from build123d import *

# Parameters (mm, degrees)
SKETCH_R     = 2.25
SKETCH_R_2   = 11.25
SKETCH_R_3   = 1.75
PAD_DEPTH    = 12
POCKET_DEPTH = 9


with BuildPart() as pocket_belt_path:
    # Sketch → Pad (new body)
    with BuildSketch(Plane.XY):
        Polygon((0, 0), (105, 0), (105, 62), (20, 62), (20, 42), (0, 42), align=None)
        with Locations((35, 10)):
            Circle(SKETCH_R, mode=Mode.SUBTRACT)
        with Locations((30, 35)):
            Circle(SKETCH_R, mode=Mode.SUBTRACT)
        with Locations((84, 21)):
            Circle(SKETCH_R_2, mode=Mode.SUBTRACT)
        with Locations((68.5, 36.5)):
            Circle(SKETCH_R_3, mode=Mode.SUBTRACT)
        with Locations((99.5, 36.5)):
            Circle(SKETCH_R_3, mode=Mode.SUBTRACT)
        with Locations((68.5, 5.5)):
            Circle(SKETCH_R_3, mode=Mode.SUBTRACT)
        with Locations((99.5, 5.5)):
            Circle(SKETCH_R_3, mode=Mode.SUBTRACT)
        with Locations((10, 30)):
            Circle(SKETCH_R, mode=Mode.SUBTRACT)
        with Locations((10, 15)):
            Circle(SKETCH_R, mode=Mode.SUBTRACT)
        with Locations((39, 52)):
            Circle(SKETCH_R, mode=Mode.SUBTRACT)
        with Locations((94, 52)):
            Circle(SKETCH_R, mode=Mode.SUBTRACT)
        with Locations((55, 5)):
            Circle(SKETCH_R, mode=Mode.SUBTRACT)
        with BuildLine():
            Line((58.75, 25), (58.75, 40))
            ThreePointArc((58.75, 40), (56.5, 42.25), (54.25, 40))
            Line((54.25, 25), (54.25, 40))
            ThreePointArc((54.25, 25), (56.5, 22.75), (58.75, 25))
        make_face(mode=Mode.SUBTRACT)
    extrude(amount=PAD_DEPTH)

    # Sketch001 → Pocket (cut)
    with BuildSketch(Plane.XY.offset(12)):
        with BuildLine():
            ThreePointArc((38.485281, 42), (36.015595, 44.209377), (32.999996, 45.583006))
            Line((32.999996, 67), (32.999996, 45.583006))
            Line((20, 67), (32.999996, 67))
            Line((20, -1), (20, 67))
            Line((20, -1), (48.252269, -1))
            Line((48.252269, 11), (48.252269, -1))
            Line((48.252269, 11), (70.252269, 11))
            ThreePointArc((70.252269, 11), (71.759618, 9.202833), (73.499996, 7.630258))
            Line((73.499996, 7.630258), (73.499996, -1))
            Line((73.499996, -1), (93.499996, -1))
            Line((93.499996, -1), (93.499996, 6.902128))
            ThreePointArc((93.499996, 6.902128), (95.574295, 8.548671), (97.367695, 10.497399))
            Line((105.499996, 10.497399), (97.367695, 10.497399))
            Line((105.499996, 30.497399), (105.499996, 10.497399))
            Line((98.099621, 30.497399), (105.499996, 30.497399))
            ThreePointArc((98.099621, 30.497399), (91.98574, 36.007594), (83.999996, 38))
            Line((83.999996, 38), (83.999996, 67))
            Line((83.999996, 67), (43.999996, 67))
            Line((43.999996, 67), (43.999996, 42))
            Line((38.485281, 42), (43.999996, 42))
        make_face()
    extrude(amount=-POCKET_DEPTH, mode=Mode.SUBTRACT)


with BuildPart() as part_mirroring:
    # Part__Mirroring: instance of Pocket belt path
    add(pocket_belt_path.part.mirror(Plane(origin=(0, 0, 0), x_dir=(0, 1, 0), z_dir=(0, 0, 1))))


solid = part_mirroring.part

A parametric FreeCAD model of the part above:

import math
import FreeCAD as App
import Part
import Sketcher
Q = App.Units.Quantity

doc = App.newDocument("Part")
body = doc.addObject("PartDesign::Body", "Body")

# Sketch on XY plane
sketch1 = body.newObject("Sketcher::SketchObject", "Sketch")
sketch1.AttachmentSupport = (doc.getObject("XY_Plane"), [""])
sketch1.MapMode = "FlatFace"
sketch1.addGeometry([
    Part.LineSegment(App.Vector(0, 0, 0), App.Vector(105, 0, 0)),  # 0
    Part.LineSegment(App.Vector(105, 0, 0), App.Vector(105, 62, 0)),  # 1
    Part.LineSegment(App.Vector(105, 62, 0), App.Vector(20, 62, 0)),  # 2
    Part.LineSegment(App.Vector(20, 62, 0), App.Vector(20, 42, 0)),  # 3
    Part.LineSegment(App.Vector(20, 42, 0), App.Vector(0, 42, 0)),  # 4
    Part.LineSegment(App.Vector(0, 42, 0), App.Vector(0, 0, 0)),  # 5
    Part.Circle(App.Vector(10, 15, 0), App.Vector(0, 0, 1), 2.2),  # 6
    Part.Circle(App.Vector(35, 10, 0), App.Vector(0, 0, 1), 2.2),  # 7
    Part.Circle(App.Vector(55, 5, 0), App.Vector(0, 0, 1), 2.2),  # 8
    Part.Circle(App.Vector(68.5, 5.5, 0), App.Vector(0, 0, 1), 1.8),  # 9
    Part.Circle(App.Vector(99.5, 5.5, 0), App.Vector(0, 0, 1), 1.8),  # 10
    Part.Circle(App.Vector(84, 21, 0), App.Vector(0, 0, 1), 11.2),  # 11
    Part.Circle(App.Vector(10, 30, 0), App.Vector(0, 0, 1), 2.2),  # 12
    Part.Circle(App.Vector(30, 35, 0), App.Vector(0, 0, 1), 2.2),  # 13
    Part.Circle(App.Vector(39, 52, 0), App.Vector(0, 0, 1), 2.2),  # 14
    Part.LineSegment(App.Vector(58.8, 40, 0), App.Vector(58.8, 25, 0)),  # 15
    Part.ArcOfCircle(Part.Circle(App.Vector(56.5, 25, 0), App.Vector(0, 0, 1), 2.2), math.radians(180), math.radians(360)),  # 16
    Part.LineSegment(App.Vector(54.2, 25, 0), App.Vector(54.2, 40, 0)),  # 17
    Part.ArcOfCircle(Part.Circle(App.Vector(56.5, 40, 0), App.Vector(0, 0, 1), 2.2), math.radians(0), math.radians(180)),  # 18
    Part.Circle(App.Vector(68.5, 36.5, 0), App.Vector(0, 0, 1), 1.8),  # 19
    Part.Circle(App.Vector(99.5, 36.5, 0), App.Vector(0, 0, 1), 1.8),  # 20
    Part.Circle(App.Vector(94, 52, 0), App.Vector(0, 0, 1), 2.2),  # 21
], False)
sketch1.addConstraint([
    Sketcher.Constraint("Coincident", 0, 2, 1, 1),
    Sketcher.Constraint("Coincident", 1, 2, 2, 1),
    Sketcher.Constraint("Coincident", 2, 2, 3, 1),
    Sketcher.Constraint("Coincident", 3, 2, 4, 1),
    Sketcher.Constraint("Coincident", 4, 2, 5, 1),
    Sketcher.Constraint("Coincident", 5, 2, 0, 1),
    Sketcher.Constraint("Tangent", 15, 2, 16, 2),
    Sketcher.Constraint("Tangent", 16, 1, 17, 1),
    Sketcher.Constraint("Tangent", 17, 2, 18, 2),
    Sketcher.Constraint("Tangent", 18, 1, 15, 1),
    Sketcher.Constraint("Horizontal", 0),
    Sketcher.Constraint("Vertical", 1),
    Sketcher.Constraint("Horizontal", 2),
    Sketcher.Constraint("Vertical", 3),
    Sketcher.Constraint("Horizontal", 4),
    Sketcher.Constraint("Vertical", 5),
    Sketcher.Constraint("Vertical", 15),
    Sketcher.Constraint("Vertical", 17),
    Sketcher.Constraint("Coincident", 5, 2, -1, 1),
    Sketcher.Constraint("Equal", 6, 7),
    Sketcher.Constraint("Equal", 7, 8),
    Sketcher.Constraint("Equal", 9, 10),
    Sketcher.Constraint("Equal", 8, 12),
    Sketcher.Constraint("Equal", 12, 13),
    Sketcher.Constraint("Equal", 13, 14),
    Sketcher.Constraint("Equal", 14, 16),
    Sketcher.Constraint("Equal", 10, 19),
    Sketcher.Constraint("Equal", 19, 20),
    Sketcher.Constraint("Equal", 18, 21),
    Sketcher.Constraint("Horizontal", 9, 3, 10, 3),
    Sketcher.Constraint("Horizontal", 19, 3, 20, 3),
    Sketcher.Constraint("Horizontal", 14, 3, 21, 3),
    Sketcher.Constraint("Vertical", 6, 3, 12, 3),
    Sketcher.Constraint("Vertical", 9, 3, 19, 3),
    Sketcher.Constraint("Vertical", 10, 3, 20, 3),
    Sketcher.Constraint("Equal", 4, 3),
    Sketcher.Constraint("Diameter", 6, Q("4.5 mm")),
    Sketcher.Constraint("Diameter", 9, Q("3.5 mm")),
    Sketcher.Constraint("Diameter", 11, Q("22.5 mm")),
    Sketcher.Constraint("DistanceX", 0, 1, 0, 2, Q("105 mm")),
    Sketcher.Constraint("DistanceX", 2, 2, 2, 1, Q("85 mm")),
    Sketcher.Constraint("DistanceY", 1, 1, 1, 2, Q("62 mm")),
    Sketcher.Constraint("DistanceY", 15, 2, 15, 1, Q("15 mm")),
    Sketcher.Constraint("DistanceX", -1, 1, 6, 3, Q("10 mm")),
    Sketcher.Constraint("DistanceY", -1, 1, 6, 3, Q("15 mm")),
    Sketcher.Constraint("DistanceX", -1, 1, 7, 3, Q("35 mm")),
    Sketcher.Constraint("DistanceY", -1, 1, 7, 3, Q("10 mm")),
    Sketcher.Constraint("DistanceX", -1, 1, 8, 3, Q("55 mm")),
    Sketcher.Constraint("DistanceY", -1, 1, 8, 3, Q("5 mm")),
    Sketcher.Constraint("DistanceX", -1, 1, 11, 3, Q("84 mm")),
    Sketcher.Constraint("DistanceY", -1, 1, 11, 3, Q("21 mm")),
    Sketcher.Constraint("DistanceY", -1, 1, 12, 3, Q("30 mm")),
    Sketcher.Constraint("DistanceX", -1, 1, 13, 3, Q("30 mm")),
    Sketcher.Constraint("DistanceY", -1, 1, 13, 3, Q("35 mm")),
    Sketcher.Constraint("DistanceX", -1, 1, 14, 3, Q("39 mm")),
    Sketcher.Constraint("DistanceY", -1, 1, 14, 3, Q("52 mm")),
    Sketcher.Constraint("DistanceY", -1, 1, 16, 3, Q("25 mm")),
    Sketcher.Constraint("DistanceX", -1, 1, 21, 3, Q("94 mm")),
    Sketcher.Constraint("DistanceX", 9, 3, 10, 3, Q("31 mm")),
    Sketcher.Constraint("DistanceX", 16, 3, 9, 3, Q("12 mm")),
    Sketcher.Constraint("DistanceY", 9, 3, 19, 3, Q("31 mm")),
    Sketcher.Constraint("DistanceX", -1, 1, 9, 3, Q("68.5 mm")),
    Sketcher.Constraint("DistanceY", -1, 1, 9, 3, Q("5.5 mm")),
])
pad1 = body.newObject("PartDesign::Pad", "Pad")
pad1.Profile = sketch1
pad1.Length = 12

# Sketch on XY plane
sketch2 = body.newObject("Sketcher::SketchObject", "Sketch001")
sketch2.AttachmentSupport = (doc.getObject("XY_Plane"), [""])
sketch2.MapMode = "FlatFace"
sketch2.AttachmentOffset = App.Placement(App.Vector(0, 0, 12), App.Rotation())
sketch2.addGeometry([
    Part.ArcOfCircle(Part.Circle(App.Vector(30, 35, 0), App.Vector(0, 0, 1), 11), math.radians(40), math.radians(74)),  # 0
    Part.LineSegment(App.Vector(33, 45.6, 0), App.Vector(33, 67, 0)),  # 1
    Part.LineSegment(App.Vector(33, 67, 0), App.Vector(20, 67, 0)),  # 2
    Part.LineSegment(App.Vector(20, 67, 0), App.Vector(20, -1, 0)),  # 3
    Part.LineSegment(App.Vector(20, -1, 0), App.Vector(48.3, -1, 0)),  # 4
    Part.LineSegment(App.Vector(48.3, -1, 0), App.Vector(48.3, 11, 0)),  # 5
    Part.LineSegment(App.Vector(48.3, 11, 0), App.Vector(70.3, 11, 0)),  # 6
    Part.ArcOfCircle(Part.Circle(App.Vector(84, 21, 0), App.Vector(0, 0, 1), 17), math.radians(-143.97), math.radians(-128.14)),  # 7
    Part.LineSegment(App.Vector(73.5, 7.6, 0), App.Vector(73.5, -1, 0)),  # 8
    Part.LineSegment(App.Vector(73.5, -1, 0), App.Vector(93.5, -1, 0)),  # 9
    Part.LineSegment(App.Vector(93.5, -1, 0), App.Vector(93.5, 6.9, 0)),  # 10
    Part.ArcOfCircle(Part.Circle(App.Vector(84, 21, 0), App.Vector(0, 0, 1), 17), math.radians(-56.03), math.radians(-38.16)),  # 11
    Part.LineSegment(App.Vector(97.4, 10.5, 0), App.Vector(105.5, 10.5, 0)),  # 12
    Part.LineSegment(App.Vector(105.5, 10.5, 0), App.Vector(105.5, 30.5, 0)),  # 13
    Part.LineSegment(App.Vector(105.5, 30.5, 0), App.Vector(98.1, 30.5, 0)),  # 14
    Part.ArcOfCircle(Part.Circle(App.Vector(84, 21, 0), App.Vector(0, 0, 1), 17), math.radians(34), math.radians(90)),  # 15
    Part.LineSegment(App.Vector(84, 38, 0), App.Vector(84, 67, 0)),  # 16
    Part.LineSegment(App.Vector(84, 67, 0), App.Vector(44, 67, 0)),  # 17
    Part.LineSegment(App.Vector(44, 67, 0), App.Vector(44, 42, 0)),  # 18
    Part.LineSegment(App.Vector(44, 42, 0), App.Vector(38.5, 42, 0)),  # 19
], False)
sketch2.addConstraint([
    Sketcher.Constraint("Coincident", 0, 2, 1, 1),
    Sketcher.Constraint("Coincident", 1, 2, 2, 1),
    Sketcher.Constraint("Coincident", 2, 2, 3, 1),
    Sketcher.Constraint("Coincident", 3, 2, 4, 1),
    Sketcher.Constraint("Coincident", 4, 2, 5, 1),
    Sketcher.Constraint("Coincident", 5, 2, 6, 1),
    Sketcher.Constraint("Coincident", 6, 2, 7, 1),
    Sketcher.Constraint("Coincident", 7, 2, 8, 1),
    Sketcher.Constraint("Coincident", 8, 2, 9, 1),
    Sketcher.Constraint("Coincident", 9, 2, 10, 1),
    Sketcher.Constraint("Coincident", 10, 2, 11, 1),
    Sketcher.Constraint("Coincident", 11, 2, 12, 1),
    Sketcher.Constraint("Coincident", 12, 2, 13, 1),
    Sketcher.Constraint("Coincident", 13, 2, 14, 1),
    Sketcher.Constraint("Coincident", 14, 2, 15, 1),
    Sketcher.Constraint("Coincident", 15, 2, 16, 1),
    Sketcher.Constraint("Coincident", 16, 2, 17, 1),
    Sketcher.Constraint("Coincident", 17, 2, 18, 1),
    Sketcher.Constraint("Coincident", 18, 2, 19, 1),
    Sketcher.Constraint("Coincident", 19, 2, 0, 1),
    Sketcher.Constraint("Vertical", 1),
    Sketcher.Constraint("Horizontal", 2),
    Sketcher.Constraint("Vertical", 3),
    Sketcher.Constraint("Horizontal", 4),
    Sketcher.Constraint("Vertical", 5),
    Sketcher.Constraint("Horizontal", 6),
    Sketcher.Constraint("Vertical", 8),
    Sketcher.Constraint("Horizontal", 9),
    Sketcher.Constraint("Vertical", 10),
    Sketcher.Constraint("Horizontal", 12),
    Sketcher.Constraint("Vertical", 13),
    Sketcher.Constraint("Horizontal", 14),
    Sketcher.Constraint("Vertical", 16),
    Sketcher.Constraint("Horizontal", 17),
    Sketcher.Constraint("Vertical", 18),
    Sketcher.Constraint("Horizontal", 19),
    Sketcher.Constraint("Coincident", 15, 3, 7, 3),
    Sketcher.Constraint("Horizontal", 4, 2, 8, 2),
    Sketcher.Constraint("Horizontal", 2, 2, 16, 2),
    Sketcher.Constraint("Equal", 9, 13),
    Sketcher.Constraint("DistanceX", 6, 1, 6, 2, Q("22 mm")),
    Sketcher.Constraint("DistanceX", 9, 1, 9, 2, Q("20 mm")),
    Sketcher.Constraint("DistanceX", 17, 2, 17, 1, Q("40 mm")),
    Sketcher.Constraint("DistanceY", 3, 2, 3, 1, Q("68 mm")),
    Sketcher.Constraint("DistanceY", 5, 1, 5, 2, Q("12 mm")),
    Sketcher.Constraint("DistanceY", 16, 1, 16, 2, Q("29 mm")),
    Sketcher.Constraint("DistanceY", 18, 2, 18, 1, Q("25 mm")),
    Sketcher.Constraint("DistanceY", -1, 1, 1, 2, Q("67 mm")),
    Sketcher.Constraint("DistanceX", -1, 1, 2, 2, Q("20 mm")),
    Sketcher.Constraint("DistanceX", 10, 2, 12, 2, Q("12 mm")),
    Sketcher.Constraint("DistanceX", 1, 2, 17, 2, Q("11 mm")),
    Sketcher.Constraint("DistanceX", 15, 2, 13, 2, Q("21.5 mm")),
    Sketcher.Constraint("Radius", 7, Q("16.99999 mm")),
    Sketcher.Constraint("Radius", 11, Q("17.00002 mm")),
    Sketcher.Constraint("DistanceX", 12, 1, 12, 2, Q("8.132301 mm")),
    Sketcher.Constraint("Radius", 0, Q("10.999985 mm")),
    Sketcher.Constraint("Radius", 15, Q("17.000005 mm")),
    Sketcher.Constraint("DistanceX", 4, 1, 4, 2, Q("28.252269 mm")),
    Sketcher.Constraint("DistanceY", 8, 2, 8, 1, Q("8.630258 mm")),
    Sketcher.Constraint("DistanceY", 10, 1, 10, 2, Q("7.902128 mm")),
    Sketcher.Constraint("DistanceY", -1, 1, 11, 2, Q("10.497399 mm")),
    Sketcher.Constraint("DistanceX", 19, 2, 19, 1, Q("5.514715 mm")),
    Sketcher.Constraint("DistanceY", 1, 1, 1, 2, Q("21.416994 mm")),
])
pocket1 = body.newObject("PartDesign::Pocket", "Pocket")
pocket1.Profile = sketch2
pocket1.Length = 9
body2 = doc.addObject("PartDesign::Body", "Body001")
doc.recompute()

mirroring = doc.addObject("Part::Mirroring", "Mirroring")
mirroring.Source = body
mirroring.Base = App.Vector(0, 0, 0)
mirroring.Normal = App.Vector(0, 0, 1)
body2.BaseFeature = mirroring
doc.recompute()
body.Visibility = False
mirroring.Visibility = False

doc.recompute()
